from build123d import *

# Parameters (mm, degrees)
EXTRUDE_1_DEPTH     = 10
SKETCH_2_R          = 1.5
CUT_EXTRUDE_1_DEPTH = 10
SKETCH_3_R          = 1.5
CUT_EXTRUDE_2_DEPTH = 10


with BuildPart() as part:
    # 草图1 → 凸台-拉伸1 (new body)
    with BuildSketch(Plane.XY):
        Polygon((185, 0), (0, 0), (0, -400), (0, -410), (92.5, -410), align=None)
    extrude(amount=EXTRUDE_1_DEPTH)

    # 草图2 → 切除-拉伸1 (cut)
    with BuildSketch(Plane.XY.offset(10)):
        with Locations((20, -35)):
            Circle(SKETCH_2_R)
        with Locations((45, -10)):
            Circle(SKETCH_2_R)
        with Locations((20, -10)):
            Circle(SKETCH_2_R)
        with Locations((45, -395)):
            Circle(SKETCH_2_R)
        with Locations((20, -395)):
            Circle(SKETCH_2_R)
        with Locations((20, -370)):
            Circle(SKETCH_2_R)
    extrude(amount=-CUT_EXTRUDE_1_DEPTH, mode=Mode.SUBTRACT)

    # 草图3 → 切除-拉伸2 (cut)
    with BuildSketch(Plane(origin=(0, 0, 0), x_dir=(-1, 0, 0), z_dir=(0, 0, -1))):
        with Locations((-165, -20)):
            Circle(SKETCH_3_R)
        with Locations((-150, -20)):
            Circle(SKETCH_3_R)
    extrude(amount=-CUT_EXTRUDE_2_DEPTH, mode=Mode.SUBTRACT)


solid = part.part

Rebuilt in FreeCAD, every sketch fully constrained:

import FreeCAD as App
import Part
import Sketcher

V = App.Vector


def add_polygon(sketch, points):
    """Adds a closed chain of lines whose ends are joined by coincident constraints."""
    first, n = sketch.GeometryCount, len(points)
    for a, b in zip(points, points[1:] + points[:1]):
        sketch.addGeometry(Part.LineSegment(App.Vector(*a, 0), App.Vector(*b, 0)), False)
    for i in range(n):
        sketch.addConstraint(Sketcher.Constraint("Coincident", first + i, 2, first + (i + 1) % n, 1))

doc = App.newDocument("Part")
body = doc.addObject("PartDesign::Body", "Body")

sketch1 = body.newObject("Sketcher::SketchObject", "Sketch")
sketch1.AttachmentSupport = (doc.getObject("XY_Plane"), [""])
sketch1.MapMode = "FlatFace"
add_polygon(sketch1, [(185, 0), (0, 0), (0, -410), (92, -410)])
sketch1.addConstraint([
    Sketcher.Constraint("Horizontal", 0),
    Sketcher.Constraint("Vertical", 1),
    Sketcher.Constraint("Horizontal", 2),
    Sketcher.Constraint("Coincident", 0, 2, -1, 1),
    Sketcher.Constraint("DistanceX", 0, 2, 0, 1, 185.0),
    Sketcher.Constraint("DistanceY", 1, 2, 1, 1, 410.0),
    Sketcher.Constraint("DistanceX", 2, 1, 2, 2, 92.5),
])
pad1 = body.newObject("PartDesign::Pad", "Pad")
pad1.Profile = sketch1
pad1.Length = 10

sketch2 = body.newObject("Sketcher::SketchObject", "Sketch001")
sketch2.AttachmentSupport = (doc.getObject("XY_Plane"), [""])
sketch2.MapMode = "FlatFace"
sketch2.AttachmentOffset = App.Placement(V(0, 0, 10), App.Rotation())
sketch2.addGeometry([
    Part.Circle(V(20, -35, 0), V(0, 0, 1), 1.5),
    Part.Circle(V(45, -10, 0), V(0, 0, 1), 1.5),
    Part.Circle(V(20, -10, 0), V(0, 0, 1), 1.5),
    Part.Circle(V(45, -395, 0), V(0, 0, 1), 1.5),
    Part.Circle(V(20, -395, 0), V(0, 0, 1), 1.5),
    Part.Circle(V(20, -370, 0), V(0, 0, 1), 1.5),
], False)
sketch2.addConstraint([
    Sketcher.Constraint("Equal", 0, 1),
    Sketcher.Constraint("Equal", 1, 2),
    Sketcher.Constraint("Equal", 2, 3),
    Sketcher.Constraint("Equal", 3, 4),
    Sketcher.Constraint("Equal", 4, 5),
    Sketcher.Constraint("Horizontal", 1, 3, 2, 3),
    Sketcher.Constraint("Horizontal", 3, 3, 4, 3),
    Sketcher.Constraint("Vertical", 0, 3, 2, 3),
    Sketcher.Constraint("Vertical", 1, 3, 3, 3),
    Sketcher.Constraint("Vertical", 2, 3, 4, 3),
    Sketcher.Constraint("Vertical", 4, 3, 5, 3),
    Sketcher.Constraint("Diameter", 0, 3.0),
    Sketcher.Constraint("DistanceX", -1, 1, 0, 3, 20.0),
    Sketcher.Constraint("DistanceY", 0, 3, -1, 1, 35.0),
    Sketcher.Constraint("DistanceX", -1, 1, 1, 3, 45.0),
    Sketcher.Constraint("DistanceY", 1, 3, -1, 1, 10.0),
    Sketcher.Constraint("DistanceY", 3, 3, -1, 1, 395.0),
    Sketcher.Constraint("DistanceY", 5, 3, -1, 1, 370.0),
])
pocket1 = body.newObject("PartDesign::Pocket", "Pocket")
pocket1.Profile = sketch2
pocket1.Length = 10

sketch3 = body.newObject("Sketcher::SketchObject", "Sketch002")
sketch3.AttachmentSupport = (doc.getObject("XY_Plane"), [""])
sketch3.MapMode = "FlatFace"
sketch3.addGeometry([
    Part.Circle(V(165, -20, 0), V(0, 0, 1), 1.5),
    Part.Circle(V(150, -20, 0), V(0, 0, 1), 1.5),
], False)
sketch3.addConstraint([
    Sketcher.Constraint("Equal", 0, 1),
    Sketcher.Constraint("Horizontal", 0, 3, 1, 3),
    Sketcher.Constraint("Diameter", 0, 3.0),
    Sketcher.Constraint("DistanceX", -1, 1, 0, 3, 165.0),
    Sketcher.Constraint("DistanceY", 0, 3, -1, 1, 20.0),
    Sketcher.Constraint("DistanceX", -1, 1, 1, 3, 150.0),
])
pocket2 = body.newObject("PartDesign::Pocket", "Pocket001")
pocket2.Profile = sketch3
pocket2.Length = 10
pocket2.Reversed = True

doc.recompute()
